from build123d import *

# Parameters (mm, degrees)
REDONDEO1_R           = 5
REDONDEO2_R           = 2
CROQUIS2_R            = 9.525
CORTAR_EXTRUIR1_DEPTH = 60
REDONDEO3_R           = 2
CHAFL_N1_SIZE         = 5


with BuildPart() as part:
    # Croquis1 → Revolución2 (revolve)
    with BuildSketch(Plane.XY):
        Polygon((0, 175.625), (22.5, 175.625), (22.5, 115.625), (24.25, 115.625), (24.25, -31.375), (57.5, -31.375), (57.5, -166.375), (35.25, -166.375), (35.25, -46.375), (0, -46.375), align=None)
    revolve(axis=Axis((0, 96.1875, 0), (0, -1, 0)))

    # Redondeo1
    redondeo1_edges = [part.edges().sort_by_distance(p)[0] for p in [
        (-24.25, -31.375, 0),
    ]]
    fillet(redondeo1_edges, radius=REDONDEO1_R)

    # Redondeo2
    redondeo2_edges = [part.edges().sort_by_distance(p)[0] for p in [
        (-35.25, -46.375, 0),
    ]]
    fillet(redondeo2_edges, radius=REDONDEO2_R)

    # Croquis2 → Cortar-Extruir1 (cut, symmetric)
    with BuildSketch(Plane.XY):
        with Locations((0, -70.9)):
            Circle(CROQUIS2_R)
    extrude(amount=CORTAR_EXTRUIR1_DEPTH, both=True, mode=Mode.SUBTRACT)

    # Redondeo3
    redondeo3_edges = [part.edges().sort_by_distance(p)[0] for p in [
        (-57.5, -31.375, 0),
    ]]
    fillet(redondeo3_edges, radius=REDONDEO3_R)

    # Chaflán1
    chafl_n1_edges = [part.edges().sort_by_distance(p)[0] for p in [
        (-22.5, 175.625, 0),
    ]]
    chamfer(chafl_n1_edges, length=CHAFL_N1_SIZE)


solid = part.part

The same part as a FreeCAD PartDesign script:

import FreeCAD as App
import Part
import Sketcher

V = App.Vector
Q = App.Units.Quantity


def edges_at(feature, points):
    """Names of the edges that pass closest to the given points."""
    edges = feature.Shape.Edges
    near = lambda p: min(range(len(edges)), key=lambda i: edges[i].distToShape(Part.Vertex(*p))[0])
    return sorted({f"Edge{near(p) + 1}" for p in points})

doc = App.newDocument("Part")
body = doc.addObject("PartDesign::Body", "Body")

# Sketch on XY plane
sketch1 = body.newObject("Sketcher::SketchObject", "Sketch")
sketch1.AttachmentSupport = (doc.getObject("XY_Plane"), [""])
sketch1.MapMode = "FlatFace"
sketch1.addGeometry([
    Part.LineSegment(V(22.5, 175.625, 0), V(0, 175.625, 0)),  # 0
    Part.LineSegment(V(0, 175.625, 0), V(0, -46.375, 0)),  # 1
    Part.LineSegment(V(0, -46.375, 0), V(35.25, -46.375, 0)),  # 2
    Part.LineSegment(V(35.25, -46.375, 0), V(35.25, -166.375, 0)),  # 3
    Part.LineSegment(V(35.25, -166.375, 0), V(57.5, -166.375, 0)),  # 4
    Part.LineSegment(V(57.5, -166.375, 0), V(57.5, -31.375, 0)),  # 5
    Part.LineSegment(V(57.5, -31.375, 0), V(24.25, -31.375, 0)),  # 6
    Part.LineSegment(V(24.25, -31.375, 0), V(24.25, 115.625, 0)),  # 7
    Part.LineSegment(V(24.25, 115.625, 0), V(22.5, 115.625, 0)),  # 8
    Part.LineSegment(V(22.5, 115.625, 0), V(22.5, 175.625, 0)),  # 9
], False)
sketch1.addConstraint([
    Sketcher.Constraint("Coincident", 0, 2, 1, 1),
    Sketcher.Constraint("Coincident", 1, 2, 2, 1),
    Sketcher.Constraint("Coincident", 2, 2, 3, 1),
    Sketcher.Constraint("Coincident", 3, 2, 4, 1),
    Sketcher.Constraint("Coincident", 4, 2, 5, 1),
    Sketcher.Constraint("Coincident", 5, 2, 6, 1),
    Sketcher.Constraint("Coincident", 6, 2, 7, 1),
    Sketcher.Constraint("Coincident", 7, 2, 8, 1),
    Sketcher.Constraint("Coincident", 8, 2, 9, 1),
    Sketcher.Constraint("Coincident", 9, 2, 0, 1),
    Sketcher.Constraint("Horizontal", 0),
    Sketcher.Constraint("Vertical", 1),
    Sketcher.Constraint("Horizontal", 2),
    Sketcher.Constraint("Vertical", 3),
    Sketcher.Constraint("Horizontal", 4),
    Sketcher.Constraint("Vertical", 5),
    Sketcher.Constraint("Horizontal", 6),
    Sketcher.Constraint("Vertical", 7),
    Sketcher.Constraint("Horizontal", 8),
    Sketcher.Constraint("Vertical", 9),
    Sketcher.Constraint("PointOnObject", 0, 2, -2),
    Sketcher.Constraint("DistanceY", 1, 2, 1, 1, Q("222 mm")),
    Sketcher.Constraint("DistanceY", 3, 2, 3, 1, Q("120 mm")),
    Sketcher.Constraint("DistanceY", 5, 1, 5, 2, Q("135 mm")),
    Sketcher.Constraint("DistanceY", 7, 1, 7, 2, Q("147 mm")),
    Sketcher.Constraint("DistanceX", 0, 2, 0, 1, Q("22.5 mm")),
    Sketcher.Constraint("DistanceX", 6, 2, 2, 2, Q("11 mm")),
    Sketcher.Constraint("DistanceX", 8, 2, 5, 2, Q("35 mm")),
    Sketcher.Constraint("DistanceX", 2, 1, 2, 2, Q("35.25 mm")),
    Sketcher.Constraint("DistanceY", -1, 1, 0, 2, Q("175.625 mm")),
])
revolution = body.newObject("PartDesign::Revolution", "Revolution")
revolution.Profile = sketch1
revolution.ReferenceAxis = (sketch1, ["V_Axis"])
revolution.Angle = 360
doc.recompute()

fillet = body.newObject("PartDesign::Fillet", "Fillet")
fillet.Base = (revolution, edges_at(revolution, [(-24.25, -31.375, 0)]))
fillet.Radius = 5
doc.recompute()

fillet2 = body.newObject("PartDesign::Fillet", "Fillet001")
fillet2.Base = (fillet, edges_at(fillet, [(-35.25, -46.375, 0)]))
fillet2.Radius = 2

# Sketch on XY plane
sketch2 = body.newObject("Sketcher::SketchObject", "Sketch001")
sketch2.AttachmentSupport = (doc.getObject("XY_Plane"), [""])
sketch2.MapMode = "FlatFace"
sketch2.addGeometry(Part.Circle(V(0, -70.9, 0), V(0, 0, 1), 9.525), False)
sketch2.addConstraint([
    Sketcher.Constraint("PointOnObject", 0, 3, -2),
    Sketcher.Constraint("Diameter", 0, Q("19.05 mm")),
    Sketcher.Constraint("DistanceY", 0, 3, -1, 1, Q("70.9 mm")),
])
pocket1 = body.newObject("PartDesign::Pocket", "Pocket")
pocket1.Profile = sketch2
pocket1.Length = 120
pocket1.Midplane = True
doc.recompute()

fillet3 = body.newObject("PartDesign::Fillet", "Fillet002")
fillet3.Base = (pocket1, edges_at(pocket1, [(-57.5, -31.375, 0)]))
fillet3.Radius = 2
doc.recompute()

chamfer = body.newObject("PartDesign::Chamfer", "Chamfer")
chamfer.Base = (fillet3, edges_at(fillet3, [(-22.5, 175.625, 0)]))
chamfer.Size = 5

doc.recompute()
